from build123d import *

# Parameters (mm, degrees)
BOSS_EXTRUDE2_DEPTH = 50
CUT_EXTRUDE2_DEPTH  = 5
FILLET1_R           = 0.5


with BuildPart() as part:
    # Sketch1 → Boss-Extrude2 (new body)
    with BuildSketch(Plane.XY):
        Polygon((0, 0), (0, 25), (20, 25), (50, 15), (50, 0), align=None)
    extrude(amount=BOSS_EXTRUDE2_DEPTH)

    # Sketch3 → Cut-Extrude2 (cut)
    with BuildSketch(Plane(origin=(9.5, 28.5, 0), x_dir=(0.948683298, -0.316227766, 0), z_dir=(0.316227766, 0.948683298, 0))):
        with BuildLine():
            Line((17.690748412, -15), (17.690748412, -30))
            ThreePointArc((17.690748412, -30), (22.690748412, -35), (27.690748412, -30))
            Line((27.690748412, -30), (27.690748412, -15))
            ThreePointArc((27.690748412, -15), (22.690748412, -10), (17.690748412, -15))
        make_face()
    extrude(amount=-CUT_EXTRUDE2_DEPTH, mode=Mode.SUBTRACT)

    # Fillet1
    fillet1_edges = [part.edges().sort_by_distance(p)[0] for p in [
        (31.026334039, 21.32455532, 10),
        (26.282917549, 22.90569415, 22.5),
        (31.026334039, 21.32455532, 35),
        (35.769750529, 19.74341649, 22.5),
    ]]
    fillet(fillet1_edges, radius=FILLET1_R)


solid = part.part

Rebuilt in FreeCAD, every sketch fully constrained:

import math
import FreeCAD as App
import Part
import Sketcher


def edges_at(feature, points):
    """Names of the edges that pass closest to the given points."""
    edges = feature.Shape.Edges
    near = lambda p: min(range(len(edges)), key=lambda i: edges[i].distToShape(Part.Vertex(*p))[0])
    return sorted({f"Edge{near(p) + 1}" for p in points})

doc = App.newDocument("Part")
params = doc.addObject("Spreadsheet::Sheet", "Params")
for row, (alias, value) in enumerate([
    ("sketch1_width", "50 mm"),
    ("sketch1_width2", "20 mm"),
    ("sketch1_height", "25 mm"),
    ("sketch1_height2", "15 mm"),
    ("pad1_length", "50 mm"),
    ("sketch2_radius", "5 mm"),
    ("sketch2_height", "15 mm"),
    ("pocket1_length", "5 mm"),
    ("fillet_radius", "0.5 mm"),
], start=1):
    params.set(f"A{row}", alias)
    params.set(f"B{row}", "=" + value)
    params.setAlias(f"B{row}", alias)

body = doc.addObject("PartDesign::Body", "Body")

# Sketch on XY plane
sketch1 = doc.addObject("Sketcher::SketchObject", "Sketch")
body.addObject(sketch1)
sketch1.AttachmentSupport = (doc.XY_Plane, [""])
sketch1.MapMode = "FlatFace"
sketch1.addGeometry([
    Part.LineSegment(App.Vector(0, 25, 0), App.Vector(0, 0, 0)),  # 0
    Part.LineSegment(App.Vector(0, 0, 0), App.Vector(50, 0, 0)),  # 1
    Part.LineSegment(App.Vector(50, 0, 0), App.Vector(50, 15, 0)),  # 2
    Part.LineSegment(App.Vector(50, 15, 0), App.Vector(20, 25, 0)),  # 3
    Part.LineSegment(App.Vector(20, 25, 0), App.Vector(0, 25, 0)),  # 4
], False)
sketch1.addConstraint([
    Sketcher.Constraint("Coincident", 0, 2, 1, 1),
    Sketcher.Constraint("Coincident", 1, 2, 2, 1),
    Sketcher.Constraint("Coincident", 2, 2, 3, 1),
    Sketcher.Constraint("Coincident", 3, 2, 4, 1),
    Sketcher.Constraint("Coincident", 4, 2, 0, 1),
    Sketcher.Constraint("Vertical", 0),
    Sketcher.Constraint("Horizontal", 1),
    Sketcher.Constraint("Vertical", 2),
    Sketcher.Constraint("Horizontal", 4),
    Sketcher.Constraint("Coincident", 0, 2, -1, 1),
    Sketcher.Constraint("DistanceX", 1, 1, 1, 2, 50.0),
    Sketcher.Constraint("DistanceX", 4, 2, 4, 1, 20.0),
    Sketcher.Constraint("DistanceY", 0, 2, 0, 1, 25.0),
    Sketcher.Constraint("DistanceY", 2, 1, 2, 2, 15.0),
])
sketch1.setExpression("Constraints[10]", "Params.sketch1_width")
sketch1.setExpression("Constraints[11]", "Params.sketch1_width2")
sketch1.setExpression("Constraints[12]", "Params.sketch1_height")
sketch1.setExpression("Constraints[13]", "Params.sketch1_height2")
pad1 = doc.addObject("PartDesign::Pad", "Pad")
body.addObject(pad1)
pad1.Profile = sketch1
pad1.setExpression("Length", "Params.pad1_length")

# Sketch on an angled plane
sketch2 = doc.addObject("Sketcher::SketchObject", "Sketch001")
body.addObject(sketch2)
sketch2.Placement = App.Placement(App.Vector(9.5, 28.5, 0), App.Rotation(App.Vector(0.948683298, -0.316227766, 0), App.Vector(0, 0, -1), App.Vector(0.316227766, 0.948683298, 0), "ZXY"))
sketch2.addGeometry([
    Part.LineSegment(App.Vector(18, -15, 0), App.Vector(18, -30, 0)),
    Part.ArcOfCircle(Part.Circle(App.Vector(23, -30, 0), App.Vector(0, 0, 1), 5), math.radians(180), math.radians(360)),
    Part.LineSegment(App.Vector(28, -30, 0), App.Vector(28, -15, 0)),
    Part.ArcOfCircle(Part.Circle(App.Vector(23, -15, 0), App.Vector(0, 0, 1), 5), math.radians(0), math.radians(180)),
], False)
sketch2.addConstraint([
    Sketcher.Constraint("Tangent", 0, 2, 1, 1),
    Sketcher.Constraint("Tangent", 1, 2, 2, 1),
    Sketcher.Constraint("Tangent", 2, 2, 3, 1),
    Sketcher.Constraint("Tangent", 3, 2, 0, 1),
    Sketcher.Constraint("Vertical", 0),
    Sketcher.Constraint("Vertical", 2),
    Sketcher.Constraint("Radius", 1, 5.0),
    Sketcher.Constraint("DistanceY", 0, 2, 0, 1, 15.0),
    Sketcher.Constraint("DistanceY", 1, 3, -1, 1, 30.0),
    Sketcher.Constraint("DistanceX", -1, 1, 1, 3, 22.690748),
])
sketch2.setExpression("Constraints[6]", "Params.sketch2_radius")
sketch2.setExpression("Constraints[7]", "Params.sketch2_height")
pocket1 = doc.addObject("PartDesign::Pocket", "Pocket")
body.addObject(pocket1)
pocket1.Profile = sketch2
pocket1.setExpression("Length", "Params.pocket1_length")
doc.recompute()

fillet = doc.addObject("PartDesign::Fillet", "Fillet")
body.addObject(fillet)
fillet.Base = (pocket1, edges_at(pocket1, [
    (31.026, 21.325, 10),
    (26.283, 22.906, 22.5),
    (31.026, 21.325, 35),
    (35.77, 19.743, 22.5),
]))
fillet.setExpression("Radius", "Params.fillet_radius")

doc.recompute()
